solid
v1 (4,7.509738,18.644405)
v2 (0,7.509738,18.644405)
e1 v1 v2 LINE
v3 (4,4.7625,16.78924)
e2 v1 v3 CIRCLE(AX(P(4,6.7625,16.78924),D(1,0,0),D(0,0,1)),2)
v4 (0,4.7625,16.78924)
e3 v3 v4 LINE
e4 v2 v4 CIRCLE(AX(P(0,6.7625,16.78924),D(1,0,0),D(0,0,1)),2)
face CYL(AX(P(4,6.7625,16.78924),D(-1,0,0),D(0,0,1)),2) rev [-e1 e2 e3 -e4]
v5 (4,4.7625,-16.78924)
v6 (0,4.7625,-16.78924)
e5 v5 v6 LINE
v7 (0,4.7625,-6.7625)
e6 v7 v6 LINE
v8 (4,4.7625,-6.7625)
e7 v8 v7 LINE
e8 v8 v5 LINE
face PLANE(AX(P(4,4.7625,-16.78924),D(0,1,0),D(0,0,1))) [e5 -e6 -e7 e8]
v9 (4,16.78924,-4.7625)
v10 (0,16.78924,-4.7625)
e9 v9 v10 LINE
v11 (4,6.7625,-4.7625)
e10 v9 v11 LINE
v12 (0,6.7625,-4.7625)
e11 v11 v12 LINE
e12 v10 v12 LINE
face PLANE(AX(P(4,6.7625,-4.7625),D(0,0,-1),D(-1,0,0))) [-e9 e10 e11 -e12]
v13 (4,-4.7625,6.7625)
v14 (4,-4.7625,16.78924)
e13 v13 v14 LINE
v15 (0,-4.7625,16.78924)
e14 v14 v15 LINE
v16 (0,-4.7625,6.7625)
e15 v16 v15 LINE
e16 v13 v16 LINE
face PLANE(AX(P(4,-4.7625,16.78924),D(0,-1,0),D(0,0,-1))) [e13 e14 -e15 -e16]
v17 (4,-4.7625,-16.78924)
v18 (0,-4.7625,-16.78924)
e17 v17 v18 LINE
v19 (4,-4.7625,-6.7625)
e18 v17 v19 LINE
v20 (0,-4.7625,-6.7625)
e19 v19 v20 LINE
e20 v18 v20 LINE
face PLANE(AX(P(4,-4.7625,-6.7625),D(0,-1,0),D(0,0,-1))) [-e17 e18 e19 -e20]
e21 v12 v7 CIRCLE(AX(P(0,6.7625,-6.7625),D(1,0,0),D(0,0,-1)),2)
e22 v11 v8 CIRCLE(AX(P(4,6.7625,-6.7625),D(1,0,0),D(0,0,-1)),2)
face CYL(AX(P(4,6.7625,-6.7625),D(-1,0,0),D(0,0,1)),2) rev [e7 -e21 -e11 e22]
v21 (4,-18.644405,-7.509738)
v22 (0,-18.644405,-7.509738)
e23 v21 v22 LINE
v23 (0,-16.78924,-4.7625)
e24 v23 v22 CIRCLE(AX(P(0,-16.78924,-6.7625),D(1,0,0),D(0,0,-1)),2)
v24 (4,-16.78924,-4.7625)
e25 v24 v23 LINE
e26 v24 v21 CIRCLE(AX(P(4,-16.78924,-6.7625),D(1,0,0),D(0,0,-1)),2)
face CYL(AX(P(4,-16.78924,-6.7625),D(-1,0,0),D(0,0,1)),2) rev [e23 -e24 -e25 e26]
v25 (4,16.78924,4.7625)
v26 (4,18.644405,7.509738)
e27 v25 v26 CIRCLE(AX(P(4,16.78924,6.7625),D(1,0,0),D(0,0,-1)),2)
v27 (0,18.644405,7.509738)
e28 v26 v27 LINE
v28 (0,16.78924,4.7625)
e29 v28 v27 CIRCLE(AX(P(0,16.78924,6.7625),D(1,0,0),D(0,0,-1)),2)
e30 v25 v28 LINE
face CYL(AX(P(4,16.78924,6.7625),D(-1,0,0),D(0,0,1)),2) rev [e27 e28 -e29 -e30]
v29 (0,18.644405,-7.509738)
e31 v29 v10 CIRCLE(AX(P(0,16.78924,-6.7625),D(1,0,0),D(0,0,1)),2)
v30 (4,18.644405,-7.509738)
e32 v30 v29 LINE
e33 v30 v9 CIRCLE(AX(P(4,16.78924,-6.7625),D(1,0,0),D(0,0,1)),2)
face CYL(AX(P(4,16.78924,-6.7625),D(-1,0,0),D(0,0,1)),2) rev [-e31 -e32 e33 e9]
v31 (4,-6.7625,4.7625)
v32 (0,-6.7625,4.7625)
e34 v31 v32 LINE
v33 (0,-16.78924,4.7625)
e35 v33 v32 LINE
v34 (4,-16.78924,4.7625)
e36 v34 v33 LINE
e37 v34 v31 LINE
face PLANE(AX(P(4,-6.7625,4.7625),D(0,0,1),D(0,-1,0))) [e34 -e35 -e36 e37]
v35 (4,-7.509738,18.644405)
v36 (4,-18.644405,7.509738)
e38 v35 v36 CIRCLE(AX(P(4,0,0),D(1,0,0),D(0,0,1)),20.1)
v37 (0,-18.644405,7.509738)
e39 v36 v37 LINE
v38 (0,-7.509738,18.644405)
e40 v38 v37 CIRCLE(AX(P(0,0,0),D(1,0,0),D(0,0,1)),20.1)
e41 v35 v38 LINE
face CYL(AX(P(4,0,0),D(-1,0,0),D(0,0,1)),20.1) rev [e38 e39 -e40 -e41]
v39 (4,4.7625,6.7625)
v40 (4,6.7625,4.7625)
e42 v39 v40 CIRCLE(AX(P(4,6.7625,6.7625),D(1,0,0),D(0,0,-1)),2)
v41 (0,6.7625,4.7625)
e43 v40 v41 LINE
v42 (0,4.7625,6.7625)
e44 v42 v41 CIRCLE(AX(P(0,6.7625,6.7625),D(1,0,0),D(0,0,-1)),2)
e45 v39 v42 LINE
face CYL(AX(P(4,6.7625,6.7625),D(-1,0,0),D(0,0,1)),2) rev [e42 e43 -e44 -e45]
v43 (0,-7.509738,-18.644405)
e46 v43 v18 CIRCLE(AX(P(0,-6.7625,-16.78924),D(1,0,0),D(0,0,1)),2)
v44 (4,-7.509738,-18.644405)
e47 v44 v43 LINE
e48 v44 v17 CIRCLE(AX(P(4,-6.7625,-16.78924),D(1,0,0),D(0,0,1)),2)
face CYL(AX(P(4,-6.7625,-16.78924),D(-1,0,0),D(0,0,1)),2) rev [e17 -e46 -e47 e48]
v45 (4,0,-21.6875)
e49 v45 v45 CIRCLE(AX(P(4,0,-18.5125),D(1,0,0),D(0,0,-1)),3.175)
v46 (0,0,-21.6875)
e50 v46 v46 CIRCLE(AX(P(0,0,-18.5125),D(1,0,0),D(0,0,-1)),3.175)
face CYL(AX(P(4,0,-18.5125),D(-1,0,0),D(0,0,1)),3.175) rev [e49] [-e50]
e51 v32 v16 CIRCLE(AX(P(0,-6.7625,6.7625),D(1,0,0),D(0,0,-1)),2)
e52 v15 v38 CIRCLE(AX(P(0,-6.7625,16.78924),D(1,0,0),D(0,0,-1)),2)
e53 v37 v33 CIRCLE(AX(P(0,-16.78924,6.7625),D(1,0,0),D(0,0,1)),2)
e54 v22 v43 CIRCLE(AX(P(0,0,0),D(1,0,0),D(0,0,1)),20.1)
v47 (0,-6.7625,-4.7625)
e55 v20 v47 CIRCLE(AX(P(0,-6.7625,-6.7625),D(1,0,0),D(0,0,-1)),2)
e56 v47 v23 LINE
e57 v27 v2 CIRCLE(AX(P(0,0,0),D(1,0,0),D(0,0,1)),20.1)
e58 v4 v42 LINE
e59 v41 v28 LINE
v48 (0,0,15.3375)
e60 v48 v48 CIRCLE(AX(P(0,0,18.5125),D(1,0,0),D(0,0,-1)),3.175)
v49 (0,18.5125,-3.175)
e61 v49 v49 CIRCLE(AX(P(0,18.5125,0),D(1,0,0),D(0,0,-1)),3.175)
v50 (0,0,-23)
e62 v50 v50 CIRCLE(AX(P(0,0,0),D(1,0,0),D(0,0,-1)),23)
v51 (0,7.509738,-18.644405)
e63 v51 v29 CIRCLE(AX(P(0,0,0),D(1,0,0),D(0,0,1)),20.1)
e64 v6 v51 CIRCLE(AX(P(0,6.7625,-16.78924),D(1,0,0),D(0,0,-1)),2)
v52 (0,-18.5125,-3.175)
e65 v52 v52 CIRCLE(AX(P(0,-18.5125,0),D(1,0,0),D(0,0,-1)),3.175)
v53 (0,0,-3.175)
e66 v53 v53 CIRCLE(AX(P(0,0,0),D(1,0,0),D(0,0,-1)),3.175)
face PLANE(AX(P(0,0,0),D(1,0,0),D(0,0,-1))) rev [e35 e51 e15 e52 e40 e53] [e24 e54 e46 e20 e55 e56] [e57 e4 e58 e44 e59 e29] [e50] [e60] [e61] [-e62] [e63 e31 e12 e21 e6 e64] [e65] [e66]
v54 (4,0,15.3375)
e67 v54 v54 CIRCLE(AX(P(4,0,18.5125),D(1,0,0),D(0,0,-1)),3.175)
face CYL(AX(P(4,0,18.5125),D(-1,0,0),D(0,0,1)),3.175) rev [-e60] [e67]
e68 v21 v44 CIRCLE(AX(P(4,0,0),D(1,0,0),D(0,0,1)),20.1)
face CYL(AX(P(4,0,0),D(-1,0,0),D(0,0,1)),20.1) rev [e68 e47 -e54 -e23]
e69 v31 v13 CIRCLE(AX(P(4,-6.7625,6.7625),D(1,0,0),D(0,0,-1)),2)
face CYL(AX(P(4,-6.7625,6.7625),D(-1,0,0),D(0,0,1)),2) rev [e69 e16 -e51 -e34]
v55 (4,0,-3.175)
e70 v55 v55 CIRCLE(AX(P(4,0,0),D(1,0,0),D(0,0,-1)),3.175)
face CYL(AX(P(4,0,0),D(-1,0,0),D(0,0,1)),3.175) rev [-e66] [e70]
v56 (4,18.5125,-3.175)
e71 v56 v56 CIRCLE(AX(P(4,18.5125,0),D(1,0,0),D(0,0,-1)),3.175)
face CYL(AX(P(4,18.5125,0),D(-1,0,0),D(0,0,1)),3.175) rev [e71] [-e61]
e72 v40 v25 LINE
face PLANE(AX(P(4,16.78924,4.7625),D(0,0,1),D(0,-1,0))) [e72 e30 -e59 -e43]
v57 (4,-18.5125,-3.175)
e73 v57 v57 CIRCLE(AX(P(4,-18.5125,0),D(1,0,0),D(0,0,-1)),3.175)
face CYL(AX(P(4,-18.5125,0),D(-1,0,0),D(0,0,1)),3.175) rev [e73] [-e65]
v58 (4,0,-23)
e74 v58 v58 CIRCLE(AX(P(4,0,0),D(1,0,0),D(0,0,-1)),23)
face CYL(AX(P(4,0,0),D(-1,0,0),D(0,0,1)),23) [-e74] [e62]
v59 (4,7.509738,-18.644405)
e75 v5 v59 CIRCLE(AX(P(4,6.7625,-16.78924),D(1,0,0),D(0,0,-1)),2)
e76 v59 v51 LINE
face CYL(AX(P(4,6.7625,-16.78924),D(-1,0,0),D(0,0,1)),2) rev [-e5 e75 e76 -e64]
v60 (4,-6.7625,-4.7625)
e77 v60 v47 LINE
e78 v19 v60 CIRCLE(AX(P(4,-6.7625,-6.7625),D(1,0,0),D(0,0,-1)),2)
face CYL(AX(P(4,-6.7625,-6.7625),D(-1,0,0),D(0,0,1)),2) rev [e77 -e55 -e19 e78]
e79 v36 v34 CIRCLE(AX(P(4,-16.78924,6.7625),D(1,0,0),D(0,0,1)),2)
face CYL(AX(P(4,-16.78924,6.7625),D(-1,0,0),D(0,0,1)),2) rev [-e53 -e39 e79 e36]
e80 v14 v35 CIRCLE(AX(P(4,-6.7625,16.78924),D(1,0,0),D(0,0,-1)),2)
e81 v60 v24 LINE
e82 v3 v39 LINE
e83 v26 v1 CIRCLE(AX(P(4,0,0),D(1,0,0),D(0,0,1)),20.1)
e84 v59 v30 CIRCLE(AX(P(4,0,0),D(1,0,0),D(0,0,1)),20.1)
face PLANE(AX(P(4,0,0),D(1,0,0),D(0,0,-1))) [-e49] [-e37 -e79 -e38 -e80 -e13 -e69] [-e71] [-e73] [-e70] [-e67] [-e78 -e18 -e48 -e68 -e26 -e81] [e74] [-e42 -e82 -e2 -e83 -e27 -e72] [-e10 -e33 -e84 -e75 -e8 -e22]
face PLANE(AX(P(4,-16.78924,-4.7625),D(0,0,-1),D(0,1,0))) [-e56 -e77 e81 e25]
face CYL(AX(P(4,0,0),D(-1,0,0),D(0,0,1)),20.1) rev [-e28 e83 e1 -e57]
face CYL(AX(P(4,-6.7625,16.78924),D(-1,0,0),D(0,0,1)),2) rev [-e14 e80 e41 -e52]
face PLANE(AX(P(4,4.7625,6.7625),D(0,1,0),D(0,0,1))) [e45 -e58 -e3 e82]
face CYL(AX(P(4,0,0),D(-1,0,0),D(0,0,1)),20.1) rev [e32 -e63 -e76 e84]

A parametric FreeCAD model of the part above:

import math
import FreeCAD as App
import Part
import Sketcher

V = App.Vector

doc = App.newDocument("Part")
body = doc.addObject("PartDesign::Body", "Body")

sketch1 = body.newObject("Sketcher::SketchObject", "Sketch")
sketch1.AttachmentSupport = (doc.getObject("YZ_Plane"), [""])
sketch1.MapMode = "FlatFace"
sketch1.addGeometry([
    Part.Circle(V(0, 0, 0), V(0, 0, 1), 23),
    Part.ArcOfCircle(Part.Circle(V(-6.7625, 6.7625, 0), V(0, 0, 1), 2), math.radians(-90), math.radians(0)),
    Part.LineSegment(V(-6.7625, 4.7625, 0), V(-16.78924, 4.7625, 0)),
    Part.ArcOfCircle(Part.Circle(V(-16.78924, 6.7625, 0), V(0, 0, 1), 2), math.radians(158.061029), math.radians(270)),
    Part.ArcOfCircle(Part.Circle(V(0, 0, 0), V(0, 0, 1), 20.1), math.radians(111.938971), math.radians(158.061029)),
    Part.ArcOfCircle(Part.Circle(V(-6.7625, 16.78924, 0), V(0, 0, 1), 2), math.radians(0), math.radians(111.938971)),
    Part.LineSegment(V(-4.7625, 16.78924, 0), V(-4.7625, 6.7625, 0)),
    Part.Circle(V(-18.5125, 0, 0), V(0, 0, 1), 3.175),
    Part.Circle(V(0, 18.5125, 0), V(0, 0, 1), 3.175),
    Part.Circle(V(0, 0, 0), V(0, 0, 1), 3.175),
    Part.ArcOfCircle(Part.Circle(V(-6.7625, -6.7625, 0), V(0, 0, 1), 2), math.radians(0), math.radians(90)),
    Part.LineSegment(V(-4.7625, -6.7625, 0), V(-4.7625, -16.78924, 0)),
    Part.ArcOfCircle(Part.Circle(V(-6.7625, -16.78924, 0), V(0, 0, 1), 2), math.radians(-111.938971), math.radians(0)),
    Part.ArcOfCircle(Part.Circle(V(0, 0, 0), V(0, 0, 1), 20.1), math.radians(-158.061029), math.radians(-111.938971)),
    Part.ArcOfCircle(Part.Circle(V(-16.78924, -6.7625, 0), V(0, 0, 1), 2), math.radians(90), math.radians(201.938971)),
    Part.LineSegment(V(-16.78924, -4.7625, 0), V(-6.7625, -4.7625, 0)),
    Part.Circle(V(0, -18.5125, 0), V(0, 0, 1), 3.175),
    Part.ArcOfCircle(Part.Circle(V(6.7625, 6.7625, 0), V(0, 0, 1), 2), math.radians(-180), math.radians(-90)),
    Part.LineSegment(V(4.7625, 6.7625, 0), V(4.7625, 16.78924, 0)),
    Part.ArcOfCircle(Part.Circle(V(6.7625, 16.78924, 0), V(0, 0, 1), 2), math.radians(68.061029), math.radians(180)),
    Part.ArcOfCircle(Part.Circle(V(0, 0, 0), V(0, 0, 1), 20.1), math.radians(21.938971), math.radians(68.061029)),
    Part.ArcOfCircle(Part.Circle(V(16.78924, 6.7625, 0), V(0, 0, 1), 2), math.radians(-90), math.radians(21.938971)),
    Part.LineSegment(V(16.78924, 4.7625, 0), V(6.7625, 4.7625, 0)),
    Part.Circle(V(18.5125, 0, 0), V(0, 0, 1), 3.175),
    Part.ArcOfCircle(Part.Circle(V(6.7625, -6.7625, 0), V(0, 0, 1), 2), math.radians(90), math.radians(180)),
    Part.LineSegment(V(6.7625, -4.7625, 0), V(16.78924, -4.7625, 0)),
    Part.ArcOfCircle(Part.Circle(V(16.78924, -6.7625, 0), V(0, 0, 1), 2), math.radians(-21.938971), math.radians(90)),
    Part.ArcOfCircle(Part.Circle(V(0, 0, 0), V(0, 0, 1), 20.1), math.radians(-68.061029), math.radians(-21.938971)),
    Part.ArcOfCircle(Part.Circle(V(6.7625, -16.78924, 0), V(0, 0, 1), 2), math.radians(180), math.radians(291.938971)),
    Part.LineSegment(V(4.7625, -16.78924, 0), V(4.7625, -6.7625, 0)),
], False)
sketch1.addConstraint([
    Sketcher.Constraint("Tangent", 1, 1, 2, 1),
    Sketcher.Constraint("Tangent", 2, 2, 3, 2),
    Sketcher.Constraint("Tangent", 3, 1, 4, 2),
    Sketcher.Constraint("Tangent", 4, 1, 5, 2),
    Sketcher.Constraint("Tangent", 5, 1, 6, 1),
    Sketcher.Constraint("Tangent", 6, 2, 1, 2),
    Sketcher.Constraint("Tangent", 10, 1, 11, 1),
    Sketcher.Constraint("Tangent", 11, 2, 12, 2),
    Sketcher.Constraint("Tangent", 12, 1, 13, 2),
    Sketcher.Constraint("Tangent", 13, 1, 14, 2),
    Sketcher.Constraint("Tangent", 14, 1, 15, 1),
    Sketcher.Constraint("Tangent", 15, 2, 10, 2),
    Sketcher.Constraint("Tangent", 17, 1, 18, 1),
    Sketcher.Constraint("Tangent", 18, 2, 19, 2),
    Sketcher.Constraint("Tangent", 19, 1, 20, 2),
    Sketcher.Constraint("Tangent", 20, 1, 21, 2),
    Sketcher.Constraint("Tangent", 21, 1, 22, 1),
    Sketcher.Constraint("Tangent", 22, 2, 17, 2),
    Sketcher.Constraint("Tangent", 24, 1, 25, 1),
    Sketcher.Constraint("Tangent", 25, 2, 26, 2),
    Sketcher.Constraint("Tangent", 26, 1, 27, 2),
    Sketcher.Constraint("Tangent", 27, 1, 28, 2),
    Sketcher.Constraint("Tangent", 28, 1, 29, 1),
    Sketcher.Constraint("Tangent", 29, 2, 24, 2),
    Sketcher.Constraint("Horizontal", 2),
    Sketcher.Constraint("Vertical", 6),
    Sketcher.Constraint("Vertical", 11),
    Sketcher.Constraint("Horizontal", 15),
    Sketcher.Constraint("Vertical", 18),
    Sketcher.Constraint("Horizontal", 22),
    Sketcher.Constraint("Horizontal", 25),
    Sketcher.Constraint("Vertical", 29),
    Sketcher.Constraint("Coincident", 0, 3, -1, 1),
    Sketcher.Constraint("Coincident", 4, 3, -1, 1),
    Sketcher.Constraint("Coincident", 9, 3, -1, 1),
    Sketcher.Constraint("Coincident", 13, 3, -1, 1),
    Sketcher.Constraint("Coincident", 20, 3, -1, 1),
    Sketcher.Constraint("Coincident", 27, 3, -1, 1),
    Sketcher.Constraint("Equal", 1, 3),
    Sketcher.Constraint("Equal", 3, 5),
    Sketcher.Constraint("Equal", 7, 8),
    Sketcher.Constraint("Equal", 8, 9),
    Sketcher.Constraint("Equal", 5, 10),
    Sketcher.Constraint("Equal", 10, 12),
    Sketcher.Constraint("Equal", 4, 13),
    Sketcher.Constraint("Equal", 12, 14),
    Sketcher.Constraint("Equal", 9, 16),
    Sketcher.Constraint("Equal", 14, 17),
    Sketcher.Constraint("Equal", 17, 19),
    Sketcher.Constraint("Equal", 13, 20),
    Sketcher.Constraint("Equal", 19, 21),
    Sketcher.Constraint("Equal", 16, 23),
    Sketcher.Constraint("Equal", 21, 24),
    Sketcher.Constraint("Equal", 24, 26),
    Sketcher.Constraint("Equal", 20, 27),
    Sketcher.Constraint("Equal", 26, 28),
    Sketcher.Constraint("Symmetric", 8, 3, 16, 3, -1, 1),
    Sketcher.Constraint("Symmetric", 10, 3, 17, 3, -1, 1),
    Sketcher.Constraint("Symmetric", 7, 3, 23, 3, -1, 1),
    Sketcher.Constraint("Symmetric", 1, 3, 24, 3, -1, 1),
    Sketcher.Constraint("Symmetric", 1, 3, 17, 3, -2),
    Sketcher.Constraint("PointOnObject", 7, 3, -1),
    Sketcher.Constraint("PointOnObject", 8, 3, -2),
    Sketcher.Constraint("Equal", 25, 6),
    Sketcher.Constraint("Diameter", 0, 46.0),
    Sketcher.Constraint("Radius", 1, 2.0),
    Sketcher.Constraint("Radius", 4, 20.1),
    Sketcher.Constraint("Diameter", 7, 6.35),
    Sketcher.Constraint("DistanceX", 7, 3, 1, 3, 11.75),
    Sketcher.Constraint("DistanceY", 1, 3, 8, 3, 11.75),
    Sketcher.Constraint("DistanceY", 10, 3, 1, 3, 13.525),
])
pad1 = body.newObject("PartDesign::Pad", "Pad")
pad1.Profile = sketch1
pad1.Length = 4

doc.recompute()
